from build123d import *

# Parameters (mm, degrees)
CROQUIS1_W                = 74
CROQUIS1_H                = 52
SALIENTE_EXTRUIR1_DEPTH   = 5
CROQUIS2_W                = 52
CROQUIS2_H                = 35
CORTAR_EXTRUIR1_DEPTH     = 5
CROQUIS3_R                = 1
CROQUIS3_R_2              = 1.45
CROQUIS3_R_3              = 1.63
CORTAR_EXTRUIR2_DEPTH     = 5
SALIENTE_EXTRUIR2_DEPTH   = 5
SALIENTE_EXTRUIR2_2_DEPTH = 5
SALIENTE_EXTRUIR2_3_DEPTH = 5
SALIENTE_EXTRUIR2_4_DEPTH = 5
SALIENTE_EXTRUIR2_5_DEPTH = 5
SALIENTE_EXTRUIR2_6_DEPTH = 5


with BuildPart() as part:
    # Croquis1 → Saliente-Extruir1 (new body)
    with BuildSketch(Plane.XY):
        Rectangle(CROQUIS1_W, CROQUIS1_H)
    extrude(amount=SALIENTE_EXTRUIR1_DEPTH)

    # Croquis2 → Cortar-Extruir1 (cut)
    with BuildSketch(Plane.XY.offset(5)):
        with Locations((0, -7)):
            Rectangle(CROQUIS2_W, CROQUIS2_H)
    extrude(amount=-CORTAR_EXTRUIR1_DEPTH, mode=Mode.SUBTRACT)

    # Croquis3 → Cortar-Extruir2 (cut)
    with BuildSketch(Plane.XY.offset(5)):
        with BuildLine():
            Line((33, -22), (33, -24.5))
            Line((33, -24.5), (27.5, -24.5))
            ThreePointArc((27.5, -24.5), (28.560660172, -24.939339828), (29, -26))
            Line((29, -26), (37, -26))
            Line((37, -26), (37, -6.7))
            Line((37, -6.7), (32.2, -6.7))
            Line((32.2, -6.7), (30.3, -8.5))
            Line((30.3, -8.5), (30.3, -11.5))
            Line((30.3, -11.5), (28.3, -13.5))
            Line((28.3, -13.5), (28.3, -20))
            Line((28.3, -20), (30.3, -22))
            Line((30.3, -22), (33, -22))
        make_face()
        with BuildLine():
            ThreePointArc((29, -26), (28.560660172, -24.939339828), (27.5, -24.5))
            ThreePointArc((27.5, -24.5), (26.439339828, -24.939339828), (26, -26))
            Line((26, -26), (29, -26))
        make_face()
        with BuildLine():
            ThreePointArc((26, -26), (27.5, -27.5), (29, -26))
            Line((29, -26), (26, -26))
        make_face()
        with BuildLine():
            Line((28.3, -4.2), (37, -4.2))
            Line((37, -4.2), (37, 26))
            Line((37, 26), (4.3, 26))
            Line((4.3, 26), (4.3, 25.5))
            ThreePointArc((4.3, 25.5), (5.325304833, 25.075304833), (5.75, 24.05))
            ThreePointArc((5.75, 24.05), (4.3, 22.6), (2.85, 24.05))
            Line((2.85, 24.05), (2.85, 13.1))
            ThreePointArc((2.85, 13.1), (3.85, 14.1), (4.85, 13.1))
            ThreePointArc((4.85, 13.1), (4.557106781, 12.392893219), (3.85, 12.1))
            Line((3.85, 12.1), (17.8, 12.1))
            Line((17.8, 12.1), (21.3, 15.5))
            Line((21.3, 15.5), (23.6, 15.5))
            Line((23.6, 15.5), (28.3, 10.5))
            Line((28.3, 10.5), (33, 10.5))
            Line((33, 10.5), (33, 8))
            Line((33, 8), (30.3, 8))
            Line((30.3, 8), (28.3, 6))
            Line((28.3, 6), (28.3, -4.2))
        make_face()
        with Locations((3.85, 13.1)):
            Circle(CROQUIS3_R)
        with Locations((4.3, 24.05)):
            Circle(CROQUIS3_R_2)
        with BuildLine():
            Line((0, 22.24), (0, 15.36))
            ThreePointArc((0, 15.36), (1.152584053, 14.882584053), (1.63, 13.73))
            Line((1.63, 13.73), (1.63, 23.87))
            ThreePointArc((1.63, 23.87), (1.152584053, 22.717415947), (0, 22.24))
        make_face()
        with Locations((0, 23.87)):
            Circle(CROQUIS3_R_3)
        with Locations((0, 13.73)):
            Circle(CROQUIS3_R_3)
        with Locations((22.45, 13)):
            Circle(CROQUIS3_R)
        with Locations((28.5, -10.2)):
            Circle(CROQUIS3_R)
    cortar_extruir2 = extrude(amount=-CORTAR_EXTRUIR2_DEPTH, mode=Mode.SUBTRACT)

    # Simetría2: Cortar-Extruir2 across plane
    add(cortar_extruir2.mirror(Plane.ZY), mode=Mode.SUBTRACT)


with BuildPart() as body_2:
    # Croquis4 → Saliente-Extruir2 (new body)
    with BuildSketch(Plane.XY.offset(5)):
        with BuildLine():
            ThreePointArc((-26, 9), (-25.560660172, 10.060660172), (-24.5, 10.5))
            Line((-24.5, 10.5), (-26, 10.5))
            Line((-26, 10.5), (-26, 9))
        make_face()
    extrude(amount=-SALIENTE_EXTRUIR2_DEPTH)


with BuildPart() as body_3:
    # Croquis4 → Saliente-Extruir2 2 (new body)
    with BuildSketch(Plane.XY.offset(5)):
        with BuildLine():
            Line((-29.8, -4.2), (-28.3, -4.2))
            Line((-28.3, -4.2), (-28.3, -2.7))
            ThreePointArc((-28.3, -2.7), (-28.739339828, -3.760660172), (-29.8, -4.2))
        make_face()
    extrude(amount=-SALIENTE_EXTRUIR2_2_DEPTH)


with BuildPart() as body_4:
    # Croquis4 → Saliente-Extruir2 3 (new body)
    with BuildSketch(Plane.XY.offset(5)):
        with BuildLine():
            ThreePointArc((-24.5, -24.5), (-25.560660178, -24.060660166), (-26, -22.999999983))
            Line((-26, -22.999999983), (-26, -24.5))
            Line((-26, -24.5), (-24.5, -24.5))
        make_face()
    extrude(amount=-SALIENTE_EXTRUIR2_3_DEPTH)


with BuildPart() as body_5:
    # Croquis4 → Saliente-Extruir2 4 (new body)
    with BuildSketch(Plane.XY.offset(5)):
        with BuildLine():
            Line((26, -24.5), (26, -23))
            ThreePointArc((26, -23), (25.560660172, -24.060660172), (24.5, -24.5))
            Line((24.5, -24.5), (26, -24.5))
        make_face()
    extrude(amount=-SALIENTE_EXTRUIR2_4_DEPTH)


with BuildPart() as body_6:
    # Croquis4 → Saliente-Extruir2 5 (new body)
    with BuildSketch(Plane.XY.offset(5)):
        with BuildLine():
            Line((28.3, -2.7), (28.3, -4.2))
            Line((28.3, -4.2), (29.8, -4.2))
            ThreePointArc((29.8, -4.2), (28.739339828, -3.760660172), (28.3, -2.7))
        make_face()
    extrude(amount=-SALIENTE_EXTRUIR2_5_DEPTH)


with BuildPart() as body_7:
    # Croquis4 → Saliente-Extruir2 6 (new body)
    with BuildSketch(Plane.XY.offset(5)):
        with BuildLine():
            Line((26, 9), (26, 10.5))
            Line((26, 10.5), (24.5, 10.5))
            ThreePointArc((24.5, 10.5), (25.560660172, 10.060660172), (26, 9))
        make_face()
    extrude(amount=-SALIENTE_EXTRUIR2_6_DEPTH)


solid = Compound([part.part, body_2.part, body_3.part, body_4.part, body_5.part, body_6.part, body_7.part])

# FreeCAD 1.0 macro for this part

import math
import FreeCAD as App
import Part
import Sketcher
from FreeCAD import Vector
Q = App.Units.Quantity

doc = App.newDocument("Part")
body = doc.addObject("PartDesign::Body", "Body")

# Sketch on XY plane
sketch1 = body.newObject("Sketcher::SketchObject", "Sketch")
sketch1.AttachmentSupport = (doc.getObject("XY_Plane"), [""])
sketch1.MapMode = "FlatFace"
sketch1.addGeometry([
    Part.LineSegment(Vector(-37, 26, 0), Vector(-37, -26, 0)),
    Part.LineSegment(Vector(-37, -26, 0), Vector(37, -26, 0)),
    Part.LineSegment(Vector(37, -26, 0), Vector(37, 26, 0)),
    Part.LineSegment(Vector(37, 26, 0), Vector(-37, 26, 0)),
], False)
sketch1.addConstraint([
    Sketcher.Constraint("Coincident", 0, 2, 1, 1),
    Sketcher.Constraint("Coincident", 1, 2, 2, 1),
    Sketcher.Constraint("Coincident", 2, 2, 3, 1),
    Sketcher.Constraint("Coincident", 3, 2, 0, 1),
    Sketcher.Constraint("Vertical", 0),
    Sketcher.Constraint("Horizontal", 1),
    Sketcher.Constraint("Vertical", 2),
    Sketcher.Constraint("Horizontal", 3),
    Sketcher.Constraint("Symmetric", 0, 2, 2, 2, -1, 1),
    Sketcher.Constraint("DistanceX", 1, 1, 1, 2, Q("74 mm")),
    Sketcher.Constraint("DistanceY", 0, 2, 0, 1, Q("52 mm")),
])
pad1 = body.newObject("PartDesign::Pad", "Pad")
pad1.Profile = sketch1
pad1.Length = 5

# Sketch on XY plane
sketch2 = body.newObject("Sketcher::SketchObject", "Sketch001")
sketch2.AttachmentSupport = (doc.getObject("XY_Plane"), [""])
sketch2.MapMode = "FlatFace"
sketch2.AttachmentOffset = App.Placement(Vector(0, 0, 5), App.Rotation())
sketch2.addGeometry([
    Part.LineSegment(Vector(-26, 10, 0), Vector(-26, -24, 0)),
    Part.LineSegment(Vector(-26, -24, 0), Vector(26, -24, 0)),
    Part.LineSegment(Vector(26, -24, 0), Vector(26, 10, 0)),
    Part.LineSegment(Vector(26, 10, 0), Vector(-26, 10, 0)),
], False)
sketch2.addConstraint([
    Sketcher.Constraint("Coincident", 0, 2, 1, 1),
    Sketcher.Constraint("Coincident", 1, 2, 2, 1),
    Sketcher.Constraint("Coincident", 2, 2, 3, 1),
    Sketcher.Constraint("Coincident", 3, 2, 0, 1),
    Sketcher.Constraint("Vertical", 0),
    Sketcher.Constraint("Horizontal", 1),
    Sketcher.Constraint("Vertical", 2),
    Sketcher.Constraint("Horizontal", 3),
    Sketcher.Constraint("DistanceX", 1, 1, 1, 2, Q("52 mm")),
    Sketcher.Constraint("DistanceY", 0, 2, 0, 1, Q("35 mm")),
    Sketcher.Constraint("DistanceX", 0, 2, -1, 1, Q("26 mm")),
    Sketcher.Constraint("DistanceY", 0, 2, -1, 1, Q("24.5 mm")),
])
pocket1 = body.newObject("PartDesign::Pocket", "Pocket")
pocket1.Profile = sketch2
pocket1.Length = 5

# Sketch on XY plane
sketch3 = body.newObject("Sketcher::SketchObject", "Sketch002")
sketch3.AttachmentSupport = (doc.getObject("XY_Plane"), [""])
sketch3.MapMode = "FlatFace"
sketch3.AttachmentOffset = App.Placement(Vector(0, 0, 5), App.Rotation())
sketch3.addGeometry([
    Part.LineSegment(Vector(33, -22, 0), Vector(33, -24.5, 0)),  # 0
    Part.LineSegment(Vector(33, -24.5, 0), Vector(27.5, -24.5, 0)),  # 1
    Part.ArcOfCircle(Part.Circle(Vector(27.5, -26, 0), Vector(0, 0, 1), 1.5), math.radians(90), math.radians(180)),  # 2
    Part.ArcOfCircle(Part.Circle(Vector(27.5, -26, 0), Vector(0, 0, 1), 1.5), math.radians(180), math.radians(360)),  # 3
    Part.LineSegment(Vector(29, -26, 0), Vector(37, -26, 0)),  # 4
    Part.LineSegment(Vector(37, -26, 0), Vector(37, -6.7, 0)),  # 5
    Part.LineSegment(Vector(37, -6.7, 0), Vector(32.2, -6.7, 0)),  # 6
    Part.LineSegment(Vector(32.2, -6.7, 0), Vector(30.3, -8.5, 0)),  # 7
    Part.LineSegment(Vector(30.3, -8.5, 0), Vector(30.3, -11.5, 0)),  # 8
    Part.LineSegment(Vector(30.3, -11.5, 0), Vector(28.3, -13.5, 0)),  # 9
    Part.LineSegment(Vector(28.3, -13.5, 0), Vector(28.3, -20, 0)),  # 10
    Part.LineSegment(Vector(28.3, -20, 0), Vector(30.3, -22, 0)),  # 11
    Part.LineSegment(Vector(30.3, -22, 0), Vector(33, -22, 0)),  # 12
    Part.LineSegment(Vector(28.3, -4.2, 0), Vector(37, -4.2, 0)),  # 13
    Part.LineSegment(Vector(37, -4.2, 0), Vector(37, 26, 0)),  # 14
    Part.LineSegment(Vector(37, 26, 0), Vector(4.3, 26, 0)),  # 15
    Part.LineSegment(Vector(4.3, 26, 0), Vector(4.3, 25.5, 0)),  # 16
    Part.ArcOfCircle(Part.Circle(Vector(4.3, 24.1, 0), Vector(0, 0, 1), 1.4), math.radians(90), math.radians(180)),  # 17
    Part.LineSegment(Vector(2.9, 24.1, 0), Vector(2.9, 13.1, 0)),  # 18
    Part.ArcOfCircle(Part.Circle(Vector(3.9, 13.1, 0), Vector(0, 0, 1), 1), math.radians(180), math.radians(270)),  # 19
    Part.LineSegment(Vector(3.9, 12.1, 0), Vector(17.8, 12.1, 0)),  # 20
    Part.LineSegment(Vector(17.8, 12.1, 0), Vector(21.3, 15.5, 0)),  # 21
    Part.LineSegment(Vector(21.3, 15.5, 0), Vector(23.6, 15.5, 0)),  # 22
    Part.LineSegment(Vector(23.6, 15.5, 0), Vector(28.3, 10.5, 0)),  # 23
    Part.LineSegment(Vector(28.3, 10.5, 0), Vector(33, 10.5, 0)),  # 24
    Part.LineSegment(Vector(33, 10.5, 0), Vector(33, 8, 0)),  # 25
    Part.LineSegment(Vector(33, 8, 0), Vector(30.3, 8, 0)),  # 26
    Part.LineSegment(Vector(30.3, 8, 0), Vector(28.3, 6, 0)),  # 27
    Part.LineSegment(Vector(28.3, 6, 0), Vector(28.3, -4.2, 0)),  # 28
    Part.LineSegment(Vector(0, 22.2, 0), Vector(0, 15.4, 0)),  # 29
    Part.ArcOfCircle(Part.Circle(Vector(0, 13.7, 0), Vector(0, 0, 1), 1.6), math.radians(90), math.radians(360)),  # 30
    Part.LineSegment(Vector(1.6, 13.7, 0), Vector(1.6, 23.9, 0)),  # 31
    Part.ArcOfCircle(Part.Circle(Vector(0, 23.9, 0), Vector(0, 0, 1), 1.6), math.radians(0), math.radians(270)),  # 32
    Part.Circle(Vector(22.4, 13, 0), Vector(0, 0, 1), 1),  # 33
    Part.Circle(Vector(28.5, -10.2, 0), Vector(0, 0, 1), 1),  # 34
], False)
sketch3.addConstraint([
    Sketcher.Constraint("Coincident", 0, 2, 1, 1),
    Sketcher.Constraint("Tangent", 1, 2, 2, 1),
    Sketcher.Constraint("Tangent", 2, 2, 3, 1),
    Sketcher.Constraint("Coincident", 3, 2, 4, 1),
    Sketcher.Constraint("Coincident", 4, 2, 5, 1),
    Sketcher.Constraint("Coincident", 5, 2, 6, 1),
    Sketcher.Constraint("Coincident", 6, 2, 7, 1),
    Sketcher.Constraint("Coincident", 7, 2, 8, 1),
    Sketcher.Constraint("Coincident", 8, 2, 9, 1),
    Sketcher.Constraint("Coincident", 9, 2, 10, 1),
    Sketcher.Constraint("Coincident", 10, 2, 11, 1),
    Sketcher.Constraint("Coincident", 11, 2, 12, 1),
    Sketcher.Constraint("Coincident", 12, 2, 0, 1),
    Sketcher.Constraint("Coincident", 13, 2, 14, 1),
    Sketcher.Constraint("Coincident", 14, 2, 15, 1),
    Sketcher.Constraint("Coincident", 15, 2, 16, 1),
    Sketcher.Constraint("Coincident", 16, 2, 17, 1),
    Sketcher.Constraint("Tangent", 17, 2, 18, 1),
    Sketcher.Constraint("Tangent", 18, 2, 19, 1),
    Sketcher.Constraint("Tangent", 19, 2, 20, 1),
    Sketcher.Constraint("Coincident", 20, 2, 21, 1),
    Sketcher.Constraint("Coincident", 21, 2, 22, 1),
    Sketcher.Constraint("Coincident", 22, 2, 23, 1),
    Sketcher.Constraint("Coincident", 23, 2, 24, 1),
    Sketcher.Constraint("Coincident", 24, 2, 25, 1),
    Sketcher.Constraint("Coincident", 25, 2, 26, 1),
    Sketcher.Constraint("Coincident", 26, 2, 27, 1),
    Sketcher.Constraint("Coincident", 27, 2, 28, 1),
    Sketcher.Constraint("Coincident", 28, 2, 13, 1),
    Sketcher.Constraint("Coincident", 29, 2, 30, 1),
    Sketcher.Constraint("Tangent", 30, 2, 31, 1),
    Sketcher.Constraint("Tangent", 31, 2, 32, 1),
    Sketcher.Constraint("Coincident", 32, 2, 29, 1),
    Sketcher.Constraint("Vertical", 0),
    Sketcher.Constraint("Horizontal", 1),
    Sketcher.Constraint("Horizontal", 4),
    Sketcher.Constraint("Vertical", 5),
    Sketcher.Constraint("Horizontal", 6),
    Sketcher.Constraint("Vertical", 8),
    Sketcher.Constraint("Vertical", 10),
    Sketcher.Constraint("Horizontal", 12),
    Sketcher.Constraint("Horizontal", 13),
    Sketcher.Constraint("Vertical", 14),
    Sketcher.Constraint("Horizontal", 15),
    Sketcher.Constraint("Vertical", 16),
    Sketcher.Constraint("Vertical", 18),
    Sketcher.Constraint("Horizontal", 20),
    Sketcher.Constraint("Horizontal", 22),
    Sketcher.Constraint("Horizontal", 24),
    Sketcher.Constraint("Vertical", 25),
    Sketcher.Constraint("Horizontal", 26),
    Sketcher.Constraint("Vertical", 28),
    Sketcher.Constraint("Vertical", 29),
    Sketcher.Constraint("Vertical", 31),
    Sketcher.Constraint("Equal", 2, 3),
    Sketcher.Constraint("Equal", 30, 32),
    Sketcher.Constraint("Equal", 19, 33),
    Sketcher.Constraint("Equal", 33, 34),
    Sketcher.Constraint("Symmetric", 4, 2, 14, 2, -1),
    Sketcher.Constraint("PointOnObject", 30, 3, -2),
    Sketcher.Constraint("PointOnObject", 29, 2, -2),
    Sketcher.Constraint("Perpendicular", 9, 11),
    Sketcher.Constraint("Perpendicular", 11, 27),
    Sketcher.Constraint("Horizontal", 3, 3, 2, 2),
    Sketcher.Constraint("Horizontal", 2, 2, 3, 2),
    Sketcher.Constraint("Vertical", 8, 2, 11, 2),
    Sketcher.Constraint("Vertical", 17, 3, 15, 2),
    Sketcher.Constraint("Vertical", 10, 2, 23, 2),
    Sketcher.Constraint("Vertical", 12, 2, 24, 2),
    Sketcher.Constraint("Vertical", 11, 2, 26, 2),
    Sketcher.Constraint("Vertical", 23, 2, 27, 2),
    Sketcher.Constraint("Equal", 0, 25),
    Sketcher.Constraint("Equal", 9, 11),
    Sketcher.Constraint("Diameter", 33, Q("2 mm")),
    Sketcher.Constraint("Radius", 2, Q("1.5 mm")),
    Sketcher.Constraint("DistanceX", 4, 1, 4, 2, Q("8 mm")),
    Sketcher.Constraint("DistanceY", 8, 2, 8, 1, Q("3 mm")),
    Sketcher.Constraint("Radius", 17, Q("1.45 mm")),
    Sketcher.Constraint("Radius", 30, Q("1.63 mm")),
    Sketcher.Constraint("DistanceX", 1, 2, 1, 1, Q("5.5 mm")),
    Sketcher.Constraint("DistanceX", 6, 2, 6, 1, Q("4.8 mm")),
    Sketcher.Constraint("DistanceX", 12, 1, 12, 2, Q("2.7 mm")),
    Sketcher.Constraint("DistanceX", 13, 1, 13, 2, Q("8.7 mm")),
    Sketcher.Constraint("DistanceX", 15, 2, 15, 1, Q("32.7 mm")),
    Sketcher.Constraint("DistanceX", 22, 1, 22, 2, Q("2.3 mm")),
    Sketcher.Constraint("DistanceY", 0, 2, 0, 1, Q("2.5 mm")),
    Sketcher.Constraint("DistanceY", 5, 1, 5, 2, Q("19.3 mm")),
    Sketcher.Constraint("DistanceY", 10, 2, 10, 1, Q("6.5 mm")),
    Sketcher.Constraint("DistanceY", 14, 1, 14, 2, Q("30.2 mm")),
    Sketcher.Constraint("DistanceY", 16, 2, 16, 1, Q("0.5 mm")),
    Sketcher.Constraint("DistanceY", 28, 2, 28, 1, Q("10.2 mm")),
    Sketcher.Constraint("DistanceY", 2, 3, -1, 1, Q("26 mm")),
    Sketcher.Constraint("DistanceY", -1, 1, 33, 3, Q("13 mm")),
    Sketcher.Constraint("DistanceX", -1, 1, 0, 2, Q("33 mm")),
    Sketcher.Constraint("DistanceX", 2, 3, 34, 3, Q("1 mm")),
    Sketcher.Constraint("DistanceY", 34, 3, 13, 2, Q("6 mm")),
    Sketcher.Constraint("DistanceY", 23, 2, 22, 2, Q("5 mm")),
    Sketcher.Constraint("DistanceX", 21, 2, 23, 2, Q("7 mm")),
    Sketcher.Constraint("DistanceX", 20, 1, 20, 2, Q("13.95 mm")),
    Sketcher.Constraint("DistanceY", 18, 2, 18, 1, Q("10.95 mm")),
    Sketcher.Constraint("DistanceY", 29, 2, 29, 1, Q("6.88 mm")),
    Sketcher.Constraint("DistanceX", 19, 3, 33, 3, Q("18.6 mm")),
    Sketcher.Constraint("DistanceY", -1, 1, 30, 3, Q("13.73 mm")),
])
pocket2 = body.newObject("PartDesign::Pocket", "Pocket001")
pocket2.Profile = sketch3
pocket2.Length = 5
doc.recompute()

mirrored = body.newObject("PartDesign::Mirrored", "Mirrored")
mirrored.Originals = [pocket2]
mirrored.MirrorPlane = (doc.getObject("YZ_Plane"), [""])
body.Tip = mirrored
body2 = doc.addObject("PartDesign::Body", "Body001")

# Sketch on XY plane
sketch4 = body2.newObject("Sketcher::SketchObject", "Sketch003")
sketch4.AttachmentSupport = (doc.getObject("XY_Plane001"), [""])
sketch4.MapMode = "FlatFace"
sketch4.AttachmentOffset = App.Placement(Vector(0, 0, 5), App.Rotation())
sketch4.addGeometry([
    Part.ArcOfCircle(Part.Circle(Vector(-24.5, 9, 0), Vector(0, 0, 1), 1.5), math.radians(90), math.radians(180)),
    Part.LineSegment(Vector(-24.5, 10.5, 0), Vector(-26, 10.5, 0)),
    Part.LineSegment(Vector(-26, 10.5, 0), Vector(-26, 9, 0)),
], False)
sketch4.addConstraint([
    Sketcher.Constraint("Tangent", 0, 1, 1, 1),
    Sketcher.Constraint("Coincident", 1, 2, 2, 1),
    Sketcher.Constraint("Tangent", 2, 2, 0, 2),
    Sketcher.Constraint("Horizontal", 1),
    Sketcher.Constraint("Vertical", 2),
    Sketcher.Constraint("Radius", 0, Q("1.5 mm")),
    Sketcher.Constraint("DistanceY", -1, 1, 0, 3, Q("9 mm")),
    Sketcher.Constraint("DistanceX", 1, 2, -1, 1, Q("26 mm")),
])
pad2 = body2.newObject("PartDesign::Pad", "Pad001")
pad2.Profile = sketch4
pad2.Length = 5
pad2.Reversed = True
body3 = doc.addObject("PartDesign::Body", "Body002")

# Sketch on XY plane
sketch5 = body3.newObject("Sketcher::SketchObject", "Sketch004")
sketch5.AttachmentSupport = (doc.getObject("XY_Plane002"), [""])
sketch5.MapMode = "FlatFace"
sketch5.AttachmentOffset = App.Placement(Vector(0, 0, 5), App.Rotation())
sketch5.addGeometry([
    Part.LineSegment(Vector(-29.8, -4.2, 0), Vector(-28.3, -4.2, 0)),
    Part.LineSegment(Vector(-28.3, -4.2, 0), Vector(-28.3, -2.7, 0)),
    Part.ArcOfCircle(Part.Circle(Vector(-29.8, -2.7, 0), Vector(0, 0, 1), 1.5), math.radians(-90), math.radians(0)),
], False)
sketch5.addConstraint([
    Sketcher.Constraint("Coincident", 0, 2, 1, 1),
    Sketcher.Constraint("Tangent", 1, 2, 2, 2),
    Sketcher.Constraint("Tangent", 2, 1, 0, 1),
    Sketcher.Constraint("Horizontal", 0),
    Sketcher.Constraint("Vertical", 1),
    Sketcher.Constraint("Radius", 2, Q("1.5 mm")),
    Sketcher.Constraint("DistanceX", 2, 3, -1, 1, Q("29.8 mm")),
    Sketcher.Constraint("DistanceY", 2, 3, -1, 1, Q("2.7 mm")),
])
pad3 = body3.newObject("PartDesign::Pad", "Pad002")
pad3.Profile = sketch5
pad3.Length = 5
pad3.Reversed = True
body4 = doc.addObject("PartDesign::Body", "Body003")

# Sketch on XY plane
sketch6 = body4.newObject("Sketcher::SketchObject", "Sketch005")
sketch6.AttachmentSupport = (doc.getObject("XY_Plane003"), [""])
sketch6.MapMode = "FlatFace"
sketch6.AttachmentOffset = App.Placement(Vector(0, 0, 5), App.Rotation())
sketch6.addGeometry([
    Part.ArcOfCircle(Part.Circle(Vector(-24.5, -23, 0), Vector(0, 0, 1), 1.5), math.radians(180), math.radians(270)),
    Part.LineSegment(Vector(-26, -23, 0), Vector(-26, -24.5, 0)),
    Part.LineSegment(Vector(-26, -24.5, 0), Vector(-24.5, -24.5, 0)),
], False)
sketch6.addConstraint([
    Sketcher.Constraint("Tangent", 0, 1, 1, 1),
    Sketcher.Constraint("Coincident", 1, 2, 2, 1),
    Sketcher.Constraint("Tangent", 2, 2, 0, 2),
    Sketcher.Constraint("Vertical", 1),
    Sketcher.Constraint("Horizontal", 2),
    Sketcher.Constraint("Radius", 0, Q("1.5 mm")),
    Sketcher.Constraint("DistanceY", 0, 3, -1, 1, Q("23 mm")),
    Sketcher.Constraint("DistanceX", 0, 1, -1, 1, Q("26 mm")),
])
pad4 = body4.newObject("PartDesign::Pad", "Pad003")
pad4.Profile = sketch6
pad4.Length = 5
pad4.Reversed = True
body5 = doc.addObject("PartDesign::Body", "Body004")

# Sketch on XY plane
sketch7 = body5.newObject("Sketcher::SketchObject", "Sketch006")
sketch7.AttachmentSupport = (doc.getObject("XY_Plane004"), [""])
sketch7.MapMode = "FlatFace"
sketch7.AttachmentOffset = App.Placement(Vector(0, 0, 5), App.Rotation())
sketch7.addGeometry([
    Part.LineSegment(Vector(26, -24.5, 0), Vector(26, -23, 0)),
    Part.ArcOfCircle(Part.Circle(Vector(24.5, -23, 0), Vector(0, 0, 1), 1.5), math.radians(-90), math.radians(0)),
    Part.LineSegment(Vector(24.5, -24.5, 0), Vector(26, -24.5, 0)),
], False)
sketch7.addConstraint([
    Sketcher.Constraint("Tangent", 0, 2, 1, 2),
    Sketcher.Constraint("Tangent", 1, 1, 2, 1),
    Sketcher.Constraint("Coincident", 2, 2, 0, 1),
    Sketcher.Constraint("Vertical", 0),
    Sketcher.Constraint("Horizontal", 2),
    Sketcher.Constraint("Radius", 1, Q("1.5 mm")),
    Sketcher.Constraint("DistanceY", 1, 3, -1, 1, Q("23 mm")),
    Sketcher.Constraint("DistanceX", -1, 1, 0, 2, Q("26 mm")),
])
pad5 = body5.newObject("PartDesign::Pad", "Pad004")
pad5.Profile = sketch7
pad5.Length = 5
pad5.Reversed = True
body6 = doc.addObject("PartDesign::Body", "Body005")

# Sketch on XY plane
sketch8 = body6.newObject("Sketcher::SketchObject", "Sketch007")
sketch8.AttachmentSupport = (doc.getObject("XY_Plane005"), [""])
sketch8.MapMode = "FlatFace"
sketch8.AttachmentOffset = App.Placement(Vector(0, 0, 5), App.Rotation())
sketch8.addGeometry([
    Part.LineSegment(Vector(28.3, -2.7, 0), Vector(28.3, -4.2, 0)),
    Part.LineSegment(Vector(28.3, -4.2, 0), Vector(29.8, -4.2, 0)),
    Part.ArcOfCircle(Part.Circle(Vector(29.8, -2.7, 0), Vector(0, 0, 1), 1.5), math.radians(180), math.radians(270)),
], False)
sketch8.addConstraint([
    Sketcher.Constraint("Coincident", 0, 2, 1, 1),
    Sketcher.Constraint("Tangent", 1, 2, 2, 2),
    Sketcher.Constraint("Tangent", 2, 1, 0, 1),
    Sketcher.Constraint("Vertical", 0),
    Sketcher.Constraint("Horizontal", 1),
    Sketcher.Constraint("Radius", 2, Q("1.5 mm")),
    Sketcher.Constraint("DistanceX", -1, 1, 2, 3, Q("29.8 mm")),
    Sketcher.Constraint("DistanceY", 2, 3, -1, 1, Q("2.7 mm")),
])
pad6 = body6.newObject("PartDesign::Pad", "Pad005")
pad6.Profile = sketch8
pad6.Length = 5
pad6.Reversed = True
body7 = doc.addObject("PartDesign::Body", "Body006")

# Sketch on XY plane
sketch9 = body7.newObject("Sketcher::SketchObject", "Sketch008")
sketch9.AttachmentSupport = (doc.getObject("XY_Plane006"), [""])
sketch9.MapMode = "FlatFace"
sketch9.AttachmentOffset = App.Placement(Vector(0, 0, 5), App.Rotation())
sketch9.addGeometry([
    Part.LineSegment(Vector(26, 9, 0), Vector(26, 10.5, 0)),
    Part.LineSegment(Vector(26, 10.5, 0), Vector(24.5, 10.5, 0)),
    Part.ArcOfCircle(Part.Circle(Vector(24.5, 9, 0), Vector(0, 0, 1), 1.5), math.radians(0), math.radians(90)),
], False)
sketch9.addConstraint([
    Sketcher.Constraint("Coincident", 0, 2, 1, 1),
    Sketcher.Constraint("Tangent", 1, 2, 2, 2),
    Sketcher.Constraint("Tangent", 2, 1, 0, 1),
    Sketcher.Constraint("Vertical", 0),
    Sketcher.Constraint("Horizontal", 1),
    Sketcher.Constraint("Radius", 2, Q("1.5 mm")),
    Sketcher.Constraint("DistanceY", -1, 1, 2, 3, Q("9 mm")),
    Sketcher.Constraint("DistanceX", -1, 1, 0, 2, Q("26 mm")),
])
pad7 = body7.newObject("PartDesign::Pad", "Pad006")
pad7.Profile = sketch9
pad7.Length = 5
pad7.Reversed = True

doc.recompute()
